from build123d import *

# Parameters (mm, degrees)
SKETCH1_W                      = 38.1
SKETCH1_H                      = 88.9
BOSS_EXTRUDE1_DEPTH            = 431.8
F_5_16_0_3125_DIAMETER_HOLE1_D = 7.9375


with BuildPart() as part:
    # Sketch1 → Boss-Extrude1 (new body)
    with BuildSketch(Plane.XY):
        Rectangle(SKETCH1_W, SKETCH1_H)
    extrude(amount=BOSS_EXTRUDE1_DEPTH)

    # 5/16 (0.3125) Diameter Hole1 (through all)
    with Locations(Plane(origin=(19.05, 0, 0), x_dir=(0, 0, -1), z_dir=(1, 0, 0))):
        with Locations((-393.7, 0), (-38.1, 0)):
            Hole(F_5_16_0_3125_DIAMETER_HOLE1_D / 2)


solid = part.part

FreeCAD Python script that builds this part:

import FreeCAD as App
import Part
import Sketcher
Q = App.Units.Quantity


def add_polygon(sketch, points):
    """Adds a closed chain of lines whose ends are joined by coincident constraints."""
    first, n = sketch.GeometryCount, len(points)
    for a, b in zip(points, points[1:] + points[:1]):
        sketch.addGeometry(Part.LineSegment(App.Vector(*a, 0), App.Vector(*b, 0)), False)
    for i in range(n):
        sketch.addConstraint(Sketcher.Constraint("Coincident", first + i, 2, first + (i + 1) % n, 1))

doc = App.newDocument("Part")
body = doc.addObject("PartDesign::Body", "Body")

# Sketch on XY plane
sketch1 = body.newObject("Sketcher::SketchObject", "Sketch")
sketch1.AttachmentSupport = (doc.getObject("XY_Plane"), [""])
sketch1.MapMode = "FlatFace"
add_polygon(sketch1, [(-19.05, 44.45), (-19.05, -44.45), (19.05, -44.45), (19.05, 44.45)])  # lines 0-3
sketch1.addConstraint([
    Sketcher.Constraint("Vertical", 0),
    Sketcher.Constraint("Horizontal", 1),
    Sketcher.Constraint("Vertical", 2),
    Sketcher.Constraint("Horizontal", 3),
    Sketcher.Constraint("Symmetric", 0, 2, 2, 2, -1, 1),
    Sketcher.Constraint("DistanceX", 1, 1, 1, 2, Q("1.5 in")),
    Sketcher.Constraint("DistanceY", 0, 2, 0, 1, Q("3.5 in")),
])
pad1 = body.newObject("PartDesign::Pad", "Pad")
pad1.Profile = sketch1
pad1.Length = Q("17 in")

# Sketch on YZ plane
sketch2 = body.newObject("Sketcher::SketchObject", "Sketch001")
sketch2.AttachmentSupport = (doc.getObject("YZ_Plane"), [""])
sketch2.MapMode = "FlatFace"
sketch2.AttachmentOffset = App.Placement(App.Vector(0, 0, 0.75 * 25.4), App.Rotation())
sketch2.addGeometry([
    Part.Circle(App.Vector(0, 393.7, 0), App.Vector(0, 0, 1), 3.96875),
    Part.Circle(App.Vector(0, 38.1, 0), App.Vector(0, 0, 1), 3.96875),
], False)
sketch2.addConstraint([
    Sketcher.Constraint("Equal", 0, 1),
    Sketcher.Constraint("PointOnObject", 0, 3, -2),
    Sketcher.Constraint("PointOnObject", 1, 3, -2),
    Sketcher.Constraint("Diameter", 0, Q("0.3125 in")),
    Sketcher.Constraint("DistanceY", 1, 3, 0, 3, Q("14 in")),
    Sketcher.Constraint("DistanceY", -1, 1, 0, 3, Q("15.5 in")),
])
doc.recompute()
hole = body.newObject("PartDesign::Hole", "Hole")
hole.Profile = sketch2
hole.ThreadType = "None"
hole.Diameter = Q("0.3125 in")
hole.DepthType = "ThroughAll"

doc.recompute()
